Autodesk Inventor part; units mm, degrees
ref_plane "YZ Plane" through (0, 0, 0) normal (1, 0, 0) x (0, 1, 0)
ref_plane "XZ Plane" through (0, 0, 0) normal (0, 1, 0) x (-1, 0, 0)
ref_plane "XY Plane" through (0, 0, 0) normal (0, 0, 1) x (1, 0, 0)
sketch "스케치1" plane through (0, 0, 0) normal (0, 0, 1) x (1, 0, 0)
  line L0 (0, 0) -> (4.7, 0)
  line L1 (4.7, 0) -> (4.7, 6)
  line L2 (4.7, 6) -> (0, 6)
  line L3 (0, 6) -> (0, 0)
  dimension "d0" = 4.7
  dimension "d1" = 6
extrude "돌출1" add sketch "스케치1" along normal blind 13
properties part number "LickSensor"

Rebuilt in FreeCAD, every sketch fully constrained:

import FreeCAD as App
import Part
import Sketcher
from FreeCAD import Vector
Q = App.Units.Quantity


def add_polygon(sketch, points):
    """Adds a closed chain of lines whose ends are joined by coincident constraints."""
    first, n = sketch.GeometryCount, len(points)
    for a, b in zip(points, points[1:] + points[:1]):
        sketch.addGeometry(Part.LineSegment(App.Vector(*a, 0), App.Vector(*b, 0)), False)
    for i in range(n):
        sketch.addConstraint(Sketcher.Constraint("Coincident", first + i, 2, first + (i + 1) % n, 1))

doc = App.newDocument("Part")
body = doc.addObject("PartDesign::Body", "Body")

# Sketch on XY plane
sketch1 = body.newObject("Sketcher::SketchObject", "Sketch")
sketch1.AttachmentSupport = (doc.getObject("XY_Plane"), [""])
sketch1.MapMode = "FlatFace"
add_polygon(sketch1, [(0, 6), (0, 0), (4.7, 0), (4.7, 6)])  # lines 0-3
sketch1.addConstraint([
    Sketcher.Constraint("Vertical", 0),
    Sketcher.Constraint("Horizontal", 1),
    Sketcher.Constraint("Vertical", 2),
    Sketcher.Constraint("Horizontal", 3),
    Sketcher.Constraint("Coincident", 0, 2, -1, 1),
    Sketcher.Constraint("DistanceY", 0, 2, 0, 1, Q("6 mm")),
    Sketcher.Constraint("DistanceX", 1, 1, 1, 2, Q("4.7 mm")),
])
pad1 = body.newObject("PartDesign::Pad", "Pad")
pad1.Profile = sketch1
pad1.Length = 13

doc.recompute()
